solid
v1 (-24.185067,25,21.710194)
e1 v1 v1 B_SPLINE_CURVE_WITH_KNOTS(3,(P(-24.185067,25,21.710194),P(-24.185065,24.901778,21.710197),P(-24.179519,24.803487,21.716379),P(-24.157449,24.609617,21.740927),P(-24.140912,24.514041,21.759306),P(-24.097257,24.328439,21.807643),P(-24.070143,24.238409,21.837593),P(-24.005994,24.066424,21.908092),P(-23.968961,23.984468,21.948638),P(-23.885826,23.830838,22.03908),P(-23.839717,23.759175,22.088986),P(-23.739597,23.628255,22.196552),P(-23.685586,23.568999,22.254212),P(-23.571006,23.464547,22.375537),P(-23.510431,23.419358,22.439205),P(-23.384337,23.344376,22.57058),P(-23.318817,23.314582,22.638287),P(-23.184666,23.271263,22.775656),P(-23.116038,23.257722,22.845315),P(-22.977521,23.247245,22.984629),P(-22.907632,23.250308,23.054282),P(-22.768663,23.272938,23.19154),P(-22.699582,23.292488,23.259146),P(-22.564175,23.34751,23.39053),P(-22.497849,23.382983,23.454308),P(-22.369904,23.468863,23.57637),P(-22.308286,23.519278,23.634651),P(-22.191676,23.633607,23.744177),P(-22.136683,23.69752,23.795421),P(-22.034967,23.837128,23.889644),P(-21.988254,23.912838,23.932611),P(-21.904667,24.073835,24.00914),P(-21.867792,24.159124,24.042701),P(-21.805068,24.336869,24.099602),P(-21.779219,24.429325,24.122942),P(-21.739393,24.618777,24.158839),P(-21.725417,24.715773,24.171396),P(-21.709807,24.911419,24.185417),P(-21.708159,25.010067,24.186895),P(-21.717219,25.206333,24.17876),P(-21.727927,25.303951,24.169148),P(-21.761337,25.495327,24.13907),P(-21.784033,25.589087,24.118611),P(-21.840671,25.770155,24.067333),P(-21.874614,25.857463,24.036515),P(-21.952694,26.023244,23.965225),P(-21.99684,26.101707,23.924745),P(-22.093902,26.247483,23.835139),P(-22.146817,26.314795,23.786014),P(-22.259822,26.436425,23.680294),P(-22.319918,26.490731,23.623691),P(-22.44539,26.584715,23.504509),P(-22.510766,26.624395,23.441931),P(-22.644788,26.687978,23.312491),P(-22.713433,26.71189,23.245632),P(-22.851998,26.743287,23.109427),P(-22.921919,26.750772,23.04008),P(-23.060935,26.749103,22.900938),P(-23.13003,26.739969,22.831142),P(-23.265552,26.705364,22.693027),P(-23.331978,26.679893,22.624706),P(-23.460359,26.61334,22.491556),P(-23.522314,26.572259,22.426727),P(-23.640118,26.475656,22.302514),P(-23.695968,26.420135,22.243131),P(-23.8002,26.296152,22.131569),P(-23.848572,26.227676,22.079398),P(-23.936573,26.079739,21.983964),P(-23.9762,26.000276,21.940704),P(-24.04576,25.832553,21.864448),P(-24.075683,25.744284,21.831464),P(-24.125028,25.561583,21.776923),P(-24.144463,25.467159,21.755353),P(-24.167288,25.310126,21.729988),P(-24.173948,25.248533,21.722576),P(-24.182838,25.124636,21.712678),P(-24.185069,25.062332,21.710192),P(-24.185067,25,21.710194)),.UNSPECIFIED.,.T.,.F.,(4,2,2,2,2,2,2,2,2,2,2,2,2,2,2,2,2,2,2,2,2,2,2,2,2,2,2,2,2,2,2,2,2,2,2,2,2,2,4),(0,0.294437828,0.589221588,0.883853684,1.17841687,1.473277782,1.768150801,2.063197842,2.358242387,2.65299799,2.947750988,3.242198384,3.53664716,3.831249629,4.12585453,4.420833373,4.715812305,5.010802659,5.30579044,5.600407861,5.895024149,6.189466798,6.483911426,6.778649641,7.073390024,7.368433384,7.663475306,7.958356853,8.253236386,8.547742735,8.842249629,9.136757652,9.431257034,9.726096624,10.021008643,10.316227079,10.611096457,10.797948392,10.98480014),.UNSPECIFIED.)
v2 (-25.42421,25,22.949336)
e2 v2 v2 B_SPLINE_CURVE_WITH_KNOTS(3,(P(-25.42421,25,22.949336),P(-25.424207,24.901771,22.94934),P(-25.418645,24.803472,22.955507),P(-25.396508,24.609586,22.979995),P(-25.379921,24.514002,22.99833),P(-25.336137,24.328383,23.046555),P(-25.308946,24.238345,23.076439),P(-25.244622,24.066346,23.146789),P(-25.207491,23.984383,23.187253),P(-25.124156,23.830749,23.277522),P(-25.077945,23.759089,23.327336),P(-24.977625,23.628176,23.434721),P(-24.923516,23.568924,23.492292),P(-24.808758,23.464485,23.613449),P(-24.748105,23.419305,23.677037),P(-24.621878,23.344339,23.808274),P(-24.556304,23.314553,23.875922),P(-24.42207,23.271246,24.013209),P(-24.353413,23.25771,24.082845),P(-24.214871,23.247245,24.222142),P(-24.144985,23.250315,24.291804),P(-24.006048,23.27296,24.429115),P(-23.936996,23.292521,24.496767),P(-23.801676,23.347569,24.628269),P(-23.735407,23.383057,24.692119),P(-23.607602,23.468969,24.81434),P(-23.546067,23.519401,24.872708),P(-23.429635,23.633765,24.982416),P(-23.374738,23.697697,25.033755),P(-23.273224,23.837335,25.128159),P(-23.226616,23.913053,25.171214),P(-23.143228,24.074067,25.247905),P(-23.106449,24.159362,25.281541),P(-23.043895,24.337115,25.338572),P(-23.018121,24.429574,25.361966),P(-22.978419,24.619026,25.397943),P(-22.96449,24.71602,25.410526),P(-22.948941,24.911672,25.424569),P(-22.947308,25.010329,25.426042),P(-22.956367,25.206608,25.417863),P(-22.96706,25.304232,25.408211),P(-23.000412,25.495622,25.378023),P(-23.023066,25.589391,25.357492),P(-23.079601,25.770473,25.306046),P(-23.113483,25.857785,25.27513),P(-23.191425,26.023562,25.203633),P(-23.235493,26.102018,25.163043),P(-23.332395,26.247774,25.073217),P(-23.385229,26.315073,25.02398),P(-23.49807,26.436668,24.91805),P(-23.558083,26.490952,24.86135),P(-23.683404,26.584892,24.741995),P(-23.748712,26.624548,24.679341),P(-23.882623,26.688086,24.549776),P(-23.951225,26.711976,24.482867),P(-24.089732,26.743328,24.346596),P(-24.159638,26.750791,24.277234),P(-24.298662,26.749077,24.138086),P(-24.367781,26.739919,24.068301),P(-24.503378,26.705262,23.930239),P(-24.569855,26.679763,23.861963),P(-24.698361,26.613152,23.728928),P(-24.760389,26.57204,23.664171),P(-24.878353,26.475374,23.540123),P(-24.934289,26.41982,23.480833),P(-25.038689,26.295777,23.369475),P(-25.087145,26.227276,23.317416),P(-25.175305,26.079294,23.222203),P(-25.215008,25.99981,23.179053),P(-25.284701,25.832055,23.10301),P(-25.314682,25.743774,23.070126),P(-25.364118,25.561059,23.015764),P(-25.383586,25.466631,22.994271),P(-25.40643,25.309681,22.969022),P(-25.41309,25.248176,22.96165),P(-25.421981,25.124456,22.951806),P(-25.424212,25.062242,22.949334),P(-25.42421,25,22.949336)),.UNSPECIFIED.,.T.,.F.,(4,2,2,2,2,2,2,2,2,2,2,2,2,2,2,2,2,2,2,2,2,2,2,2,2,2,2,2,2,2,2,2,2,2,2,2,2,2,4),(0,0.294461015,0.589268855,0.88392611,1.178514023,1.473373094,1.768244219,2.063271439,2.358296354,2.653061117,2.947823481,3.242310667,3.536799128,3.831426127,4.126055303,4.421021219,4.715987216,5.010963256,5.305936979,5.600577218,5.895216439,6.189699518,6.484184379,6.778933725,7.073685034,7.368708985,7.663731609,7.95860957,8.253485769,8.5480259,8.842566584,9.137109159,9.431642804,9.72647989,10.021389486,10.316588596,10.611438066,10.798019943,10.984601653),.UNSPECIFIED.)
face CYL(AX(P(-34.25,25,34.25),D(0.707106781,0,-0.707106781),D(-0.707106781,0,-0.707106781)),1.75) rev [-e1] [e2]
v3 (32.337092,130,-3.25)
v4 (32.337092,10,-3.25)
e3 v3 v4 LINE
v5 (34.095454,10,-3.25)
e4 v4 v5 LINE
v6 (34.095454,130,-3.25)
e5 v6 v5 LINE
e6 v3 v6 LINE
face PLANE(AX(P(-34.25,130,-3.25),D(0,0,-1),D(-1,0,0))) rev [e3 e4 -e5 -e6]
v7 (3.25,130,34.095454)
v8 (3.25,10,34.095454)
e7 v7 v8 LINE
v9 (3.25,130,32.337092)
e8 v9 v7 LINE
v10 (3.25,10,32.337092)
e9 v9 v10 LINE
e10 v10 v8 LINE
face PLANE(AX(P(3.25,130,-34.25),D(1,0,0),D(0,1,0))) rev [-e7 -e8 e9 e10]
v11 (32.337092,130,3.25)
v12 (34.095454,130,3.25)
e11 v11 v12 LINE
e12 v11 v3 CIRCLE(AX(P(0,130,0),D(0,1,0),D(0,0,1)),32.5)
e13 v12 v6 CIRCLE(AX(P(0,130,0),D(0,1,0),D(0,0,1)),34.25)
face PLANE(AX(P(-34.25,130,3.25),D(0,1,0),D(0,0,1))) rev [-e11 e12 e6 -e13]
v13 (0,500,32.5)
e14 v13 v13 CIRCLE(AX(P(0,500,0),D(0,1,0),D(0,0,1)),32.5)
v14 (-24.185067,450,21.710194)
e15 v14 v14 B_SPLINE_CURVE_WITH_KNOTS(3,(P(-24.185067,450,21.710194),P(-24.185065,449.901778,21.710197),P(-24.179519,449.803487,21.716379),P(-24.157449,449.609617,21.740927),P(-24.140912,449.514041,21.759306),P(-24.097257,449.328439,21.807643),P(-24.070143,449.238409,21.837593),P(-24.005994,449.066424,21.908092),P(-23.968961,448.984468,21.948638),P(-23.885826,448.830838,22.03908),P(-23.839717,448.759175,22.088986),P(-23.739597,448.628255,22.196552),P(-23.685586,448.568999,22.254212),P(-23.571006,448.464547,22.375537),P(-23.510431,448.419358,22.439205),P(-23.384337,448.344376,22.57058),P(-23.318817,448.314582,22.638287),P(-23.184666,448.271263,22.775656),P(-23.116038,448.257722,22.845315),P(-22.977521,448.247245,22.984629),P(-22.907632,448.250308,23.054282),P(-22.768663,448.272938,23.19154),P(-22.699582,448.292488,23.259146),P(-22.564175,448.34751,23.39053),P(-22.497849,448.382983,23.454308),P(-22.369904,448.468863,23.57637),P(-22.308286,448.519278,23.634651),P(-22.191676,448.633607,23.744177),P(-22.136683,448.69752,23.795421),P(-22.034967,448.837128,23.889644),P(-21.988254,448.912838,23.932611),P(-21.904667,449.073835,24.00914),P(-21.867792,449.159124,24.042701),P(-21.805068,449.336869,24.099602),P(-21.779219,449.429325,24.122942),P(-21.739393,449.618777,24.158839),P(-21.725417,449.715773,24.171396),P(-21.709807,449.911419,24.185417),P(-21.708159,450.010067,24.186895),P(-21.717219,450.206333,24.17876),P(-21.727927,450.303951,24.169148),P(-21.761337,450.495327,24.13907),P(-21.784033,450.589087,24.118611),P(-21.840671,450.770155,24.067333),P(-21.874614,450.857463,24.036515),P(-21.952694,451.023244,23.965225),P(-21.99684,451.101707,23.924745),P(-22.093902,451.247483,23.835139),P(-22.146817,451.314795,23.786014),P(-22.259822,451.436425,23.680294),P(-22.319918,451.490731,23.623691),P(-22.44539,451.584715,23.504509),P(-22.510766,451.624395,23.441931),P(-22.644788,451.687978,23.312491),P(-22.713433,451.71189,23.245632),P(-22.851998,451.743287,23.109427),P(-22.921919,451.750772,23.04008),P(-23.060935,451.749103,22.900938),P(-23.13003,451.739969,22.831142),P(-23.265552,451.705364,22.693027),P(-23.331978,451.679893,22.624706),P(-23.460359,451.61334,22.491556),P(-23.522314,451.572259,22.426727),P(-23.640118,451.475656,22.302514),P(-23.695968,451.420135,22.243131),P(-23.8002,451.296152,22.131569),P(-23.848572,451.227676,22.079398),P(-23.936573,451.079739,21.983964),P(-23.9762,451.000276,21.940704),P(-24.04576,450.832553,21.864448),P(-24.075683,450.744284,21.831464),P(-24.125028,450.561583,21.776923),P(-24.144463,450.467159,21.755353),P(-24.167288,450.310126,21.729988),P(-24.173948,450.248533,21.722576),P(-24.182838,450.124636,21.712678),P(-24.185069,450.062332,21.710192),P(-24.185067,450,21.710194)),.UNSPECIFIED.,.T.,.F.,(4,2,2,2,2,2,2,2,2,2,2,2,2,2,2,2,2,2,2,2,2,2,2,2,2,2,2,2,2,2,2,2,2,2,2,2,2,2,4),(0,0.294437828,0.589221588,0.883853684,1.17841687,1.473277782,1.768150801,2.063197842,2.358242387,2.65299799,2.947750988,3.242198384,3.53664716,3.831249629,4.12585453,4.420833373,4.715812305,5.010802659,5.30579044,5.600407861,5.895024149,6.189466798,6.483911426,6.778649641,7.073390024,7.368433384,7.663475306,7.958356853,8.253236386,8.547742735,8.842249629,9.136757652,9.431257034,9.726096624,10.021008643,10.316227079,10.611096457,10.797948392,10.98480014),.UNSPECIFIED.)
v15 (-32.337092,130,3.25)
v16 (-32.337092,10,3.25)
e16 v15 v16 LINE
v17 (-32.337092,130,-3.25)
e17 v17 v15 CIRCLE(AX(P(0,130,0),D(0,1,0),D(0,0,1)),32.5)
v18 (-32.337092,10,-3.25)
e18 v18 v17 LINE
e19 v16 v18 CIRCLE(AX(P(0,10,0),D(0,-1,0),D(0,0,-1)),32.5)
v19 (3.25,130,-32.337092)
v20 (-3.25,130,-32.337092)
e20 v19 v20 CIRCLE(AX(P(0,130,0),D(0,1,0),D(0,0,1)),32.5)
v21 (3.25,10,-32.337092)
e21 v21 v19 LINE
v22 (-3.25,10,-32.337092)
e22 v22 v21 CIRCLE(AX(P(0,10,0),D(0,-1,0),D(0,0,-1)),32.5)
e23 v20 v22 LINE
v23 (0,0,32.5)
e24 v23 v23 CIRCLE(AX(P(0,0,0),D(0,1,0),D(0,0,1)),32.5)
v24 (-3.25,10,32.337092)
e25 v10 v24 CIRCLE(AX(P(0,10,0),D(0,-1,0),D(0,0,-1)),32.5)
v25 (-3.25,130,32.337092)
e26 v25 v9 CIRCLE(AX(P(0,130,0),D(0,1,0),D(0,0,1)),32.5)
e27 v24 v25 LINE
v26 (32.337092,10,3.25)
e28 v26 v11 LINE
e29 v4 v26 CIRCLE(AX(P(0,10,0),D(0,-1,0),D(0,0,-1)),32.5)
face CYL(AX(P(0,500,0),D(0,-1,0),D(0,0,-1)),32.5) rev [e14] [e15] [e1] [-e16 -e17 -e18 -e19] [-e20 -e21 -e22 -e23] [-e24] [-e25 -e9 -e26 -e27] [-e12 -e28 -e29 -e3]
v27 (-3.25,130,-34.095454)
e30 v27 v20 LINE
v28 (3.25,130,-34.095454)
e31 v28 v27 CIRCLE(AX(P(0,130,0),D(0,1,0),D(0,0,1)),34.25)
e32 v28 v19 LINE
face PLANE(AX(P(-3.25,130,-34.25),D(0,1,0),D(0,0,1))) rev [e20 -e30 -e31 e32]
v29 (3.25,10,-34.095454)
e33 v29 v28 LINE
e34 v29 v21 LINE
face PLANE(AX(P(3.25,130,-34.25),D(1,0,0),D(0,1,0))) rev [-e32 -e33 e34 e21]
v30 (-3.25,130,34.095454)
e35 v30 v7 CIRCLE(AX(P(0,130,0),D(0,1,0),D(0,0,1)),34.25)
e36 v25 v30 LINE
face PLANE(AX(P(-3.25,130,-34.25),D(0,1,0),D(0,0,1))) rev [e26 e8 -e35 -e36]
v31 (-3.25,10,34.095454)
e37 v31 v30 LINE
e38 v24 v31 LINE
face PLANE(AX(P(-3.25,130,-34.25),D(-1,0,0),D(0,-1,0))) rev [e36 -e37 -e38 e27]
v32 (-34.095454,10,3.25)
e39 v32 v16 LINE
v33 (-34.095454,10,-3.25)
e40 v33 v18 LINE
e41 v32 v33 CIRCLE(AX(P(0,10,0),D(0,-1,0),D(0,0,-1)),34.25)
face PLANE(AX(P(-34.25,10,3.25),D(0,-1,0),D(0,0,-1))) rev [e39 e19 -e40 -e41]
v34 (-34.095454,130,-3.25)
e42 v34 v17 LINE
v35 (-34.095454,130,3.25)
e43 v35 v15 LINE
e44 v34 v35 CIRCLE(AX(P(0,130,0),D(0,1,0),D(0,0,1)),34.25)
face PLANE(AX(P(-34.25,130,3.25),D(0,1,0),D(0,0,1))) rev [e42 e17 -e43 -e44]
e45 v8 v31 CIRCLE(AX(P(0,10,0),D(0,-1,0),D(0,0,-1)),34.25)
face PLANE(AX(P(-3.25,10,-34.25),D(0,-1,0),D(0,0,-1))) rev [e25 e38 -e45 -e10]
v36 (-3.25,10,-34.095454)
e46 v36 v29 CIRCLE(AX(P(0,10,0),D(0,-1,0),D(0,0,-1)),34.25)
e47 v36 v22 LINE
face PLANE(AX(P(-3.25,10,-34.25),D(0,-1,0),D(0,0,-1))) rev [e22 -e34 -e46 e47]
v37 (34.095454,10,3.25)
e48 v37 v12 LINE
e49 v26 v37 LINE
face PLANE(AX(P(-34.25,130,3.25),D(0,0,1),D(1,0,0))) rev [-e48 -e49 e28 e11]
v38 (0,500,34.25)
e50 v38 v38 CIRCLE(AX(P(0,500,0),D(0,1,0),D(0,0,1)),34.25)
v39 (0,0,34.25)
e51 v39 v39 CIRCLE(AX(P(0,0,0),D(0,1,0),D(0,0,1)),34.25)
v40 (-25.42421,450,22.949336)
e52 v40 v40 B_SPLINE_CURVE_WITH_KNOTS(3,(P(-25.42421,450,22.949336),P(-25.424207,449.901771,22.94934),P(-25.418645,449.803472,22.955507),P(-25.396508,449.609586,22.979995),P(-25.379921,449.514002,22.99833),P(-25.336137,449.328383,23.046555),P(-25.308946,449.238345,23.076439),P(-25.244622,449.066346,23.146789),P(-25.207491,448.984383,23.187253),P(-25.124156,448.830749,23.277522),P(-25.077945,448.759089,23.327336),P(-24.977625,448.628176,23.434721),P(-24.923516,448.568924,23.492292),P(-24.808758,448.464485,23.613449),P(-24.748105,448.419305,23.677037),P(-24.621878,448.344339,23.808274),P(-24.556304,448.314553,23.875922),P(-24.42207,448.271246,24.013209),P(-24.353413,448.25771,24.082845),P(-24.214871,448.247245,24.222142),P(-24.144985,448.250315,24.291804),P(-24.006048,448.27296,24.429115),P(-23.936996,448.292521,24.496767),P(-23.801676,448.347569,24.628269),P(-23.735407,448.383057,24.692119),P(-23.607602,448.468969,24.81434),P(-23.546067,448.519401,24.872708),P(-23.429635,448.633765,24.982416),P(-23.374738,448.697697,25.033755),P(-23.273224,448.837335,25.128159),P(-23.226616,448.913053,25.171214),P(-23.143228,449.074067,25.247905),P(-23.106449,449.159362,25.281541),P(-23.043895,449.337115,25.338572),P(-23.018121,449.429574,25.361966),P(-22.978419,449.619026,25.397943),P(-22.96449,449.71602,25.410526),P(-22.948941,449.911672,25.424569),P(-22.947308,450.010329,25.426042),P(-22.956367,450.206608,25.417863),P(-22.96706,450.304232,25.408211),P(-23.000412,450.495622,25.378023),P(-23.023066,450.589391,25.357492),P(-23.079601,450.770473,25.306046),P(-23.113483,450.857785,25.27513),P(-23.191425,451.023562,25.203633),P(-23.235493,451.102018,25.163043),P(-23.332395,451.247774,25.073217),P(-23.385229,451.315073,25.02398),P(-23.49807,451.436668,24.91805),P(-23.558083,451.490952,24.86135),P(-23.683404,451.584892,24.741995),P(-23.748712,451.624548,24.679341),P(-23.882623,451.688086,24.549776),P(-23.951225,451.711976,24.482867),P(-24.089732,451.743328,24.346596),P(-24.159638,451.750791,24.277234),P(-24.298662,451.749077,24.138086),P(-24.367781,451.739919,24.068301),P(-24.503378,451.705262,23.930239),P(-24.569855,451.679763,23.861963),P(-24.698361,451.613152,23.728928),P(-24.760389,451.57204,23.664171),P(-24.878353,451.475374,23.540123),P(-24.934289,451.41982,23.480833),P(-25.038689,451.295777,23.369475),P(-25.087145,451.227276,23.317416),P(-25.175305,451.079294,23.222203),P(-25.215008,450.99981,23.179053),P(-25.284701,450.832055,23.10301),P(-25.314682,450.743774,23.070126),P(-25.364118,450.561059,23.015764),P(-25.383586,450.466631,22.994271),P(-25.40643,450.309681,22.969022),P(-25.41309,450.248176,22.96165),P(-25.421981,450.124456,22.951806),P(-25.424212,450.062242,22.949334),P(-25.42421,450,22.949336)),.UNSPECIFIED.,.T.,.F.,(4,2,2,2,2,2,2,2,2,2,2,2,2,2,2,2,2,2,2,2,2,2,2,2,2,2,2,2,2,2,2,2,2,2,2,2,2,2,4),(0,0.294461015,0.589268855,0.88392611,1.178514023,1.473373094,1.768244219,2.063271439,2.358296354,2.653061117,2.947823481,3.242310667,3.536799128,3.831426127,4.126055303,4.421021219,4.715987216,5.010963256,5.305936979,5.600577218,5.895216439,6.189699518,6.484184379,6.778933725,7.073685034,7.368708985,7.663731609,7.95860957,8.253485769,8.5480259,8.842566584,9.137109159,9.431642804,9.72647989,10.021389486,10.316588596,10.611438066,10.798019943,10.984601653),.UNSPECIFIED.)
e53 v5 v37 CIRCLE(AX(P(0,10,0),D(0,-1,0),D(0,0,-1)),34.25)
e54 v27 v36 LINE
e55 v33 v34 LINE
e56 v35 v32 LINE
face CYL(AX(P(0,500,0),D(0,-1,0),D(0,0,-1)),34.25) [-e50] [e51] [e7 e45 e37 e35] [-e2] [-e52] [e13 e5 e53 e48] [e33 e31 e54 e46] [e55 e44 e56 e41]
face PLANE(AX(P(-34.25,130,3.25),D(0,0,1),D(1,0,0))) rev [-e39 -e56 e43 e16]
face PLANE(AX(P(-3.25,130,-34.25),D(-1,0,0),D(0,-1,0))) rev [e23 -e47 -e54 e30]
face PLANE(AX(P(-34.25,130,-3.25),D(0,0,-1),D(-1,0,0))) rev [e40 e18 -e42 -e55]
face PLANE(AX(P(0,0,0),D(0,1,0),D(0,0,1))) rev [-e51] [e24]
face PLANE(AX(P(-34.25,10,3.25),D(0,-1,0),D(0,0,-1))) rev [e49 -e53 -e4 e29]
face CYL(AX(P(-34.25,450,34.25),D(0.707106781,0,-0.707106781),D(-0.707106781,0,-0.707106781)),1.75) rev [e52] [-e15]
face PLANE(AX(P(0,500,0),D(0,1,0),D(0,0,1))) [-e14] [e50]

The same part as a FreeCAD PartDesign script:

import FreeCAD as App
import Part
import Sketcher
Q = App.Units.Quantity

doc = App.newDocument("Part")
body = doc.addObject("PartDesign::Body", "Body")

sketch1 = body.newObject("Sketcher::SketchObject", "Sketch")
sketch1.AttachmentSupport = (doc.getObject("XZ_Plane"), [""])
sketch1.MapMode = "FlatFace"
sketch1.addGeometry([
    Part.Circle(App.Vector(0, 0, 0), App.Vector(0, 0, 1), 34),
    Part.Circle(App.Vector(0, 0, 0), App.Vector(0, 0, 1), 32),
], False)
sketch1.addConstraint([
    Sketcher.Constraint("Coincident", 0, 3, -1, 1),
    Sketcher.Constraint("Coincident", 1, 3, -1, 1),
    Sketcher.Constraint("Diameter", 1, Q("65 mm")),
    Sketcher.Constraint("Diameter", 0, Q("68.5 mm")),
])
pad1 = body.newObject("PartDesign::Pad", "Pad")
pad1.Profile = sketch1
pad1.Length = 500
pad1.Reversed = True

sketch2 = body.newObject("Sketcher::SketchObject", "Sketch001")
sketch2.Placement = App.Placement(App.Vector(0, 0, 0), App.Rotation(App.Vector(0.707106781, 0, 0.707106781), App.Vector(0, 0.999999999, 0), App.Vector(-0.707106781, 0, 0.707106781), "ZXY"))
sketch2.addGeometry([
    Part.Circle(App.Vector(0, 25, 0), App.Vector(0, 0, 1), 1.8),
    Part.Circle(App.Vector(0, 450, 0), App.Vector(0, 0, 1), 1.8),
], False)
sketch2.addConstraint([
    Sketcher.Constraint("Equal", 0, 1),
    Sketcher.Constraint("PointOnObject", 0, 3, -2),
    Sketcher.Constraint("PointOnObject", 1, 3, -2),
    Sketcher.Constraint("Diameter", 0, Q("3.5 mm")),
    Sketcher.Constraint("DistanceY", -1, 1, 0, 3, Q("25 mm")),
    Sketcher.Constraint("DistanceY", -1, 1, 1, 3, Q("450 mm")),
])
pocket1 = body.newObject("PartDesign::Pocket", "Pocket")
pocket1.Profile = sketch2
pocket1.Type = "ThroughAll"
pocket1.Reversed = True

sketch3 = body.newObject("Sketcher::SketchObject", "Sketch002")
sketch3.AttachmentSupport = (doc.getObject("XY_Plane"), [""])
sketch3.MapMode = "FlatFace"
sketch3.addGeometry([
    Part.LineSegment(App.Vector(-3, 130, 0), App.Vector(-3, 10, 0)),
    Part.LineSegment(App.Vector(-3, 10, 0), App.Vector(3, 10, 0)),
    Part.LineSegment(App.Vector(3, 10, 0), App.Vector(3, 130, 0)),
    Part.LineSegment(App.Vector(3, 130, 0), App.Vector(-3, 130, 0)),
], False)
sketch3.addConstraint([
    Sketcher.Constraint("Coincident", 0, 2, 1, 1),
    Sketcher.Constraint("Coincident", 1, 2, 2, 1),
    Sketcher.Constraint("Coincident", 2, 2, 3, 1),
    Sketcher.Constraint("Coincident", 3, 2, 0, 1),
    Sketcher.Constraint("Vertical", 0),
    Sketcher.Constraint("Horizontal", 1),
    Sketcher.Constraint("Vertical", 2),
    Sketcher.Constraint("Horizontal", 3),
    Sketcher.Constraint("DistanceY", 0, 2, 0, 1, Q("120 mm")),
    Sketcher.Constraint("DistanceX", 1, 1, 1, 2, Q("6.5 mm")),
    Sketcher.Constraint("DistanceY", -1, 1, 0, 2, Q("10 mm")),
    Sketcher.Constraint("DistanceX", 0, 2, -1, 1, Q("3.25 mm")),
])
pocket2 = body.newObject("PartDesign::Pocket", "Pocket001")
pocket2.Profile = sketch3
pocket2.Length = 1006.681293
pocket2.Midplane = True
doc.recompute()

polarpattern = body.newObject("PartDesign::PolarPattern", "PolarPattern")
polarpattern.Originals = [pocket2]
polarpattern.Axis = (doc.getObject("Y_Axis"), [""])
polarpattern.Angle = 90
polarpattern.Occurrences = 2
body.Tip = polarpattern

doc.recompute()
